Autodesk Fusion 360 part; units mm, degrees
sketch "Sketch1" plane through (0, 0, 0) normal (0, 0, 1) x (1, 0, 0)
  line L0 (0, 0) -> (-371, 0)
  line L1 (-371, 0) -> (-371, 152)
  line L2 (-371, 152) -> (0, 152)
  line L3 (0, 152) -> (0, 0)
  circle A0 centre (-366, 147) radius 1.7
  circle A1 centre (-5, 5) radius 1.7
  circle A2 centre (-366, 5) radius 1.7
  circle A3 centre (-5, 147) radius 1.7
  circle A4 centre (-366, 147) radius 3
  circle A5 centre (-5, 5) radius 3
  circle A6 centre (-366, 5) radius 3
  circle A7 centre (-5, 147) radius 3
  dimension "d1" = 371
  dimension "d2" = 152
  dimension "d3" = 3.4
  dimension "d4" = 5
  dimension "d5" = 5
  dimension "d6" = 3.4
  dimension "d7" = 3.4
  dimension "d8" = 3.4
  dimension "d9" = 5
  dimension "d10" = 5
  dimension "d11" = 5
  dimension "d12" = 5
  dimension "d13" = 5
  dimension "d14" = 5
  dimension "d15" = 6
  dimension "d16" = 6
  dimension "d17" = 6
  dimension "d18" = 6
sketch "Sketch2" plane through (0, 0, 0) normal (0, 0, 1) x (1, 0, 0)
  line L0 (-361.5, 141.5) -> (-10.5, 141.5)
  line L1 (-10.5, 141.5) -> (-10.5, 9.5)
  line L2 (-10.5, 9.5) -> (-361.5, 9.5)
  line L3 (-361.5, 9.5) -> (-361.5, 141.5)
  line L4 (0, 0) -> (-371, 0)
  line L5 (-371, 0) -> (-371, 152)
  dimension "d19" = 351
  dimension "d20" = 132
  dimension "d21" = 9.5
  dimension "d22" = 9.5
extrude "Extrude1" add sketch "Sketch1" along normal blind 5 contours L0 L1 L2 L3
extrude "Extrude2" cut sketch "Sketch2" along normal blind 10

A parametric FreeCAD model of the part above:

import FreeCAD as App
import Part
import Sketcher
from FreeCAD import Vector


def add_polygon(sketch, points):
    """Adds a closed chain of lines whose ends are joined by coincident constraints."""
    first, n = sketch.GeometryCount, len(points)
    for a, b in zip(points, points[1:] + points[:1]):
        sketch.addGeometry(Part.LineSegment(App.Vector(*a, 0), App.Vector(*b, 0)), False)
    for i in range(n):
        sketch.addConstraint(Sketcher.Constraint("Coincident", first + i, 2, first + (i + 1) % n, 1))

doc = App.newDocument("Part")
body = doc.addObject("PartDesign::Body", "Body")

sketch1 = body.newObject("Sketcher::SketchObject", "Sketch")
sketch1.AttachmentSupport = (doc.getObject("XY_Plane"), [""])
sketch1.MapMode = "FlatFace"
add_polygon(sketch1, [(-371, 0), (0, 0), (0, 152), (-371, 152)])
sketch1.addGeometry(Part.Circle(Vector(-366, 5, 0), Vector(0, 0, 1), 3), False)
sketch1.addGeometry(Part.Circle(Vector(-5, 5, 0), Vector(0, 0, 1), 3), False)
sketch1.addGeometry(Part.Circle(Vector(-366, 147, 0), Vector(0, 0, 1), 3), False)
sketch1.addGeometry(Part.Circle(Vector(-5, 147, 0), Vector(0, 0, 1), 3), False)
sketch1.addConstraint([
    Sketcher.Constraint("Horizontal", 0),
    Sketcher.Constraint("Vertical", 1),
    Sketcher.Constraint("Horizontal", 2),
    Sketcher.Constraint("Vertical", 3),
    Sketcher.Constraint("Coincident", 0, 2, -1, 1),
    Sketcher.Constraint("Equal", 4, 5),
    Sketcher.Constraint("Equal", 5, 6),
    Sketcher.Constraint("Equal", 6, 7),
    Sketcher.Constraint("Horizontal", 4, 3, 5, 3),
    Sketcher.Constraint("Horizontal", 6, 3, 7, 3),
    Sketcher.Constraint("Vertical", 4, 3, 6, 3),
    Sketcher.Constraint("Vertical", 5, 3, 7, 3),
    Sketcher.Constraint("Diameter", 4, 6.0),
    Sketcher.Constraint("DistanceX", 0, 1, 0, 2, 371.0),
    Sketcher.Constraint("DistanceY", 1, 1, 1, 2, 152.0),
    Sketcher.Constraint("DistanceY", -1, 1, 4, 3, 5.0),
    Sketcher.Constraint("DistanceX", 5, 3, -1, 1, 5.0),
    Sketcher.Constraint("DistanceY", 7, 3, 1, 2, 5.0),
    Sketcher.Constraint("DistanceX", 2, 2, 6, 3, 5.0),
])
pad1 = body.newObject("PartDesign::Pad", "Pad")
pad1.Profile = sketch1
pad1.Length = 5

sketch2 = body.newObject("Sketcher::SketchObject", "Sketch001")
sketch2.AttachmentSupport = (doc.getObject("XY_Plane"), [""])
sketch2.MapMode = "FlatFace"
add_polygon(sketch2, [(-10, 142), (-362, 142), (-362, 10), (-10, 10)])
sketch2.addConstraint([
    Sketcher.Constraint("Horizontal", 0),
    Sketcher.Constraint("Vertical", 1),
    Sketcher.Constraint("Horizontal", 2),
    Sketcher.Constraint("Vertical", 3),
    Sketcher.Constraint("DistanceX", 0, 2, 0, 1, 351.0),
    Sketcher.Constraint("DistanceY", 1, 2, 1, 1, 132.0),
    Sketcher.Constraint("DistanceY", -1, 1, 1, 2, 9.5),
    Sketcher.Constraint("DistanceX", 0, 2, -1, 1, 361.5),
])
pocket1 = body.newObject("PartDesign::Pocket", "Pocket")
pocket1.Profile = sketch2
pocket1.Length = 10
pocket1.Reversed = True

doc.recompute()
